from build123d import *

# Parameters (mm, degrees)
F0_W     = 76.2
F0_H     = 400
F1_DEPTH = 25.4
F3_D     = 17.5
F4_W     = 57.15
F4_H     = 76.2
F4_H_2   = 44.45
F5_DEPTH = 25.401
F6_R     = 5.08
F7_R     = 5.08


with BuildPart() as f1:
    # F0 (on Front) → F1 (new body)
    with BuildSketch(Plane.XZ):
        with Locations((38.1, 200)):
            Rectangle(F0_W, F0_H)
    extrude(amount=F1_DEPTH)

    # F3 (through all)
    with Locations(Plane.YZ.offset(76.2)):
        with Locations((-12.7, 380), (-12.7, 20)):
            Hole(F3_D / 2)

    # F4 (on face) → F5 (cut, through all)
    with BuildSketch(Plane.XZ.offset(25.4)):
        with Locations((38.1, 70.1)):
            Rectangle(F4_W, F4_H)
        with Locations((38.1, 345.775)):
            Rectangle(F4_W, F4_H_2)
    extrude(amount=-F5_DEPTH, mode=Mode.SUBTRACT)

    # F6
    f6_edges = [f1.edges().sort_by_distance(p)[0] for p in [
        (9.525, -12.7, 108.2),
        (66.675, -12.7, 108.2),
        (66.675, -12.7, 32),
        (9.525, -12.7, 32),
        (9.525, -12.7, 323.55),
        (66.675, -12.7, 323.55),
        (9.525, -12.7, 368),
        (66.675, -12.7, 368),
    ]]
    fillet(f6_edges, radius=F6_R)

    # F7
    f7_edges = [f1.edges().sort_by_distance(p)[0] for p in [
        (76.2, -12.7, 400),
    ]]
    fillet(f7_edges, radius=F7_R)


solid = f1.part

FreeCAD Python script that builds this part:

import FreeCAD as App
import Part
import Sketcher
Q = App.Units.Quantity


def edges_at(feature, points):
    """Names of the edges that pass closest to the given points."""
    edges = feature.Shape.Edges
    near = lambda p: min(range(len(edges)), key=lambda i: edges[i].distToShape(Part.Vertex(*p))[0])
    return sorted({f"Edge{near(p) + 1}" for p in points})

doc = App.newDocument("Part")
body = doc.addObject("PartDesign::Body", "Body")

# Sketch on XZ plane
sketch1 = doc.addObject("Sketcher::SketchObject", "Sketch")
body.addObject(sketch1)
sketch1.AttachmentSupport = (doc.XZ_Plane, [""])
sketch1.MapMode = "FlatFace"
sketch1.addGeometry(Part.LineSegment(App.Vector(0, 400, 0), App.Vector(0, 0, 0)), False)
sketch1.addGeometry(Part.LineSegment(App.Vector(0, 0, 0), App.Vector(76, 0, 0)), False)
sketch1.addGeometry(Part.LineSegment(App.Vector(76, 0, 0), App.Vector(76, 400, 0)), False)
sketch1.addGeometry(Part.LineSegment(App.Vector(76, 400, 0), App.Vector(0, 400, 0)), False)
sketch1.addConstraint(Sketcher.Constraint("Coincident", 0, 2, 1, 1))
sketch1.addConstraint(Sketcher.Constraint("Coincident", 1, 2, 2, 1))
sketch1.addConstraint(Sketcher.Constraint("Coincident", 2, 2, 3, 1))
sketch1.addConstraint(Sketcher.Constraint("Coincident", 3, 2, 0, 1))
sketch1.addConstraint(Sketcher.Constraint("Vertical", 0))
sketch1.addConstraint(Sketcher.Constraint("Horizontal", 1))
sketch1.addConstraint(Sketcher.Constraint("Vertical", 2))
sketch1.addConstraint(Sketcher.Constraint("Horizontal", 3))
sketch1.addConstraint(Sketcher.Constraint("Coincident", 0, 2, -1, 1))
sketch1.addConstraint(Sketcher.Constraint("DistanceX", 1, 1, 1, 2, Q("3 in")))
sketch1.addConstraint(Sketcher.Constraint("DistanceY", 0, 2, 0, 1, Q("400 mm")))
pad1 = doc.addObject("PartDesign::Pad", "Pad")
body.addObject(pad1)
pad1.Profile = sketch1
pad1.Length = Q("1 in")

# Sketch on YZ plane
sketch2 = doc.addObject("Sketcher::SketchObject", "Sketch001")
body.addObject(sketch2)
sketch2.AttachmentSupport = (doc.YZ_Plane, [""])
sketch2.MapMode = "FlatFace"
sketch2.AttachmentOffset = App.Placement(App.Vector(0, 0, 3 * 25.4), App.Rotation())
sketch2.addGeometry(Part.Circle(App.Vector(-13, 380, 0), App.Vector(0, 0, 1), 9), False)
sketch2.addGeometry(Part.Circle(App.Vector(-13, 20, 0), App.Vector(0, 0, 1), 9), False)
sketch2.addConstraint(Sketcher.Constraint("Equal", 0, 1))
sketch2.addConstraint(Sketcher.Constraint("Vertical", 0, 3, 1, 3))
sketch2.addConstraint(Sketcher.Constraint("DistanceX", 0, 3, -1, 1, Q("0.5 in")))
sketch2.addConstraint(Sketcher.Constraint("Diameter", 0, Q("17.5 mm")))
sketch2.addConstraint(Sketcher.Constraint("DistanceY", -1, 1, 0, 3, Q("380 mm")))
sketch2.addConstraint(Sketcher.Constraint("DistanceY", -1, 1, 1, 3, Q("20 mm")))
doc.recompute()
hole = doc.addObject("PartDesign::Hole", "Hole")
body.addObject(hole)
hole.Profile = sketch2
hole.ThreadType = "None"
hole.Diameter = 17.5
hole.DepthType = "ThroughAll"

# Sketch on XZ plane
sketch3 = doc.addObject("Sketcher::SketchObject", "Sketch002")
body.addObject(sketch3)
sketch3.AttachmentSupport = (doc.XZ_Plane, [""])
sketch3.MapMode = "FlatFace"
sketch3.AttachmentOffset = App.Placement(App.Vector(0, 0, 1 * 25.4), App.Rotation())
sketch3.addGeometry(Part.LineSegment(App.Vector(10, 108, 0), App.Vector(10, 32, 0)), False)
sketch3.addGeometry(Part.LineSegment(App.Vector(10, 32, 0), App.Vector(67, 32, 0)), False)
sketch3.addGeometry(Part.LineSegment(App.Vector(67, 32, 0), App.Vector(67, 108, 0)), False)
sketch3.addGeometry(Part.LineSegment(App.Vector(67, 108, 0), App.Vector(10, 108, 0)), False)
sketch3.addGeometry(Part.LineSegment(App.Vector(10, 368, 0), App.Vector(10, 324, 0)), False)
sketch3.addGeometry(Part.LineSegment(App.Vector(10, 324, 0), App.Vector(67, 324, 0)), False)
sketch3.addGeometry(Part.LineSegment(App.Vector(67, 324, 0), App.Vector(67, 368, 0)), False)
sketch3.addGeometry(Part.LineSegment(App.Vector(67, 368, 0), App.Vector(10, 368, 0)), False)
sketch3.addConstraint(Sketcher.Constraint("Coincident", 0, 2, 1, 1))
sketch3.addConstraint(Sketcher.Constraint("Coincident", 1, 2, 2, 1))
sketch3.addConstraint(Sketcher.Constraint("Coincident", 2, 2, 3, 1))
sketch3.addConstraint(Sketcher.Constraint("Coincident", 3, 2, 0, 1))
sketch3.addConstraint(Sketcher.Constraint("Coincident", 4, 2, 5, 1))
sketch3.addConstraint(Sketcher.Constraint("Coincident", 5, 2, 6, 1))
sketch3.addConstraint(Sketcher.Constraint("Coincident", 6, 2, 7, 1))
sketch3.addConstraint(Sketcher.Constraint("Coincident", 7, 2, 4, 1))
sketch3.addConstraint(Sketcher.Constraint("Vertical", 0))
sketch3.addConstraint(Sketcher.Constraint("Horizontal", 1))
sketch3.addConstraint(Sketcher.Constraint("Vertical", 2))
sketch3.addConstraint(Sketcher.Constraint("Horizontal", 3))
sketch3.addConstraint(Sketcher.Constraint("Vertical", 4))
sketch3.addConstraint(Sketcher.Constraint("Horizontal", 5))
sketch3.addConstraint(Sketcher.Constraint("Vertical", 6))
sketch3.addConstraint(Sketcher.Constraint("Horizontal", 7))
sketch3.addConstraint(Sketcher.Constraint("Vertical", 3, 2, 4, 2))
sketch3.addConstraint(Sketcher.Constraint("Vertical", 2, 2, 5, 2))
sketch3.addConstraint(Sketcher.Constraint("DistanceY", 0, 2, 0, 1, Q("3 in")))
sketch3.addConstraint(Sketcher.Constraint("DistanceX", 1, 1, 1, 2, Q("2.25 in")))
sketch3.addConstraint(Sketcher.Constraint("DistanceY", 4, 2, 4, 1, Q("1.75 in")))
sketch3.addConstraint(Sketcher.Constraint("DistanceX", -1, 1, 0, 2, Q("0.375 in")))
sketch3.addConstraint(Sketcher.Constraint("DistanceY", -1, 1, 0, 2, Q("32 mm")))
sketch3.addConstraint(Sketcher.Constraint("DistanceY", -1, 1, 4, 2, Q("323.55 mm")))
pocket1 = doc.addObject("PartDesign::Pocket", "Pocket")
body.addObject(pocket1)
pocket1.Profile = sketch3
pocket1.Type = "ThroughAll"
doc.recompute()

fillet = doc.addObject("PartDesign::Fillet", "Fillet")
body.addObject(fillet)
fillet.Base = (pocket1, edges_at(pocket1, [
    (9.525, -12.7, 108.2),
    (66.675, -12.7, 108.2),
    (66.675, -12.7, 32),
    (9.525, -12.7, 32),
    (9.525, -12.7, 323.55),
    (66.675, -12.7, 323.55),
    (9.525, -12.7, 368),
    (66.675, -12.7, 368),
]))
fillet.Radius = Q("0.2 in")
doc.recompute()

fillet2 = doc.addObject("PartDesign::Fillet", "Fillet001")
body.addObject(fillet2)
fillet2.Base = (fillet, edges_at(fillet, [(76.2, -12.7, 400)]))
fillet2.Radius = Q("0.2 in")

doc.recompute()
